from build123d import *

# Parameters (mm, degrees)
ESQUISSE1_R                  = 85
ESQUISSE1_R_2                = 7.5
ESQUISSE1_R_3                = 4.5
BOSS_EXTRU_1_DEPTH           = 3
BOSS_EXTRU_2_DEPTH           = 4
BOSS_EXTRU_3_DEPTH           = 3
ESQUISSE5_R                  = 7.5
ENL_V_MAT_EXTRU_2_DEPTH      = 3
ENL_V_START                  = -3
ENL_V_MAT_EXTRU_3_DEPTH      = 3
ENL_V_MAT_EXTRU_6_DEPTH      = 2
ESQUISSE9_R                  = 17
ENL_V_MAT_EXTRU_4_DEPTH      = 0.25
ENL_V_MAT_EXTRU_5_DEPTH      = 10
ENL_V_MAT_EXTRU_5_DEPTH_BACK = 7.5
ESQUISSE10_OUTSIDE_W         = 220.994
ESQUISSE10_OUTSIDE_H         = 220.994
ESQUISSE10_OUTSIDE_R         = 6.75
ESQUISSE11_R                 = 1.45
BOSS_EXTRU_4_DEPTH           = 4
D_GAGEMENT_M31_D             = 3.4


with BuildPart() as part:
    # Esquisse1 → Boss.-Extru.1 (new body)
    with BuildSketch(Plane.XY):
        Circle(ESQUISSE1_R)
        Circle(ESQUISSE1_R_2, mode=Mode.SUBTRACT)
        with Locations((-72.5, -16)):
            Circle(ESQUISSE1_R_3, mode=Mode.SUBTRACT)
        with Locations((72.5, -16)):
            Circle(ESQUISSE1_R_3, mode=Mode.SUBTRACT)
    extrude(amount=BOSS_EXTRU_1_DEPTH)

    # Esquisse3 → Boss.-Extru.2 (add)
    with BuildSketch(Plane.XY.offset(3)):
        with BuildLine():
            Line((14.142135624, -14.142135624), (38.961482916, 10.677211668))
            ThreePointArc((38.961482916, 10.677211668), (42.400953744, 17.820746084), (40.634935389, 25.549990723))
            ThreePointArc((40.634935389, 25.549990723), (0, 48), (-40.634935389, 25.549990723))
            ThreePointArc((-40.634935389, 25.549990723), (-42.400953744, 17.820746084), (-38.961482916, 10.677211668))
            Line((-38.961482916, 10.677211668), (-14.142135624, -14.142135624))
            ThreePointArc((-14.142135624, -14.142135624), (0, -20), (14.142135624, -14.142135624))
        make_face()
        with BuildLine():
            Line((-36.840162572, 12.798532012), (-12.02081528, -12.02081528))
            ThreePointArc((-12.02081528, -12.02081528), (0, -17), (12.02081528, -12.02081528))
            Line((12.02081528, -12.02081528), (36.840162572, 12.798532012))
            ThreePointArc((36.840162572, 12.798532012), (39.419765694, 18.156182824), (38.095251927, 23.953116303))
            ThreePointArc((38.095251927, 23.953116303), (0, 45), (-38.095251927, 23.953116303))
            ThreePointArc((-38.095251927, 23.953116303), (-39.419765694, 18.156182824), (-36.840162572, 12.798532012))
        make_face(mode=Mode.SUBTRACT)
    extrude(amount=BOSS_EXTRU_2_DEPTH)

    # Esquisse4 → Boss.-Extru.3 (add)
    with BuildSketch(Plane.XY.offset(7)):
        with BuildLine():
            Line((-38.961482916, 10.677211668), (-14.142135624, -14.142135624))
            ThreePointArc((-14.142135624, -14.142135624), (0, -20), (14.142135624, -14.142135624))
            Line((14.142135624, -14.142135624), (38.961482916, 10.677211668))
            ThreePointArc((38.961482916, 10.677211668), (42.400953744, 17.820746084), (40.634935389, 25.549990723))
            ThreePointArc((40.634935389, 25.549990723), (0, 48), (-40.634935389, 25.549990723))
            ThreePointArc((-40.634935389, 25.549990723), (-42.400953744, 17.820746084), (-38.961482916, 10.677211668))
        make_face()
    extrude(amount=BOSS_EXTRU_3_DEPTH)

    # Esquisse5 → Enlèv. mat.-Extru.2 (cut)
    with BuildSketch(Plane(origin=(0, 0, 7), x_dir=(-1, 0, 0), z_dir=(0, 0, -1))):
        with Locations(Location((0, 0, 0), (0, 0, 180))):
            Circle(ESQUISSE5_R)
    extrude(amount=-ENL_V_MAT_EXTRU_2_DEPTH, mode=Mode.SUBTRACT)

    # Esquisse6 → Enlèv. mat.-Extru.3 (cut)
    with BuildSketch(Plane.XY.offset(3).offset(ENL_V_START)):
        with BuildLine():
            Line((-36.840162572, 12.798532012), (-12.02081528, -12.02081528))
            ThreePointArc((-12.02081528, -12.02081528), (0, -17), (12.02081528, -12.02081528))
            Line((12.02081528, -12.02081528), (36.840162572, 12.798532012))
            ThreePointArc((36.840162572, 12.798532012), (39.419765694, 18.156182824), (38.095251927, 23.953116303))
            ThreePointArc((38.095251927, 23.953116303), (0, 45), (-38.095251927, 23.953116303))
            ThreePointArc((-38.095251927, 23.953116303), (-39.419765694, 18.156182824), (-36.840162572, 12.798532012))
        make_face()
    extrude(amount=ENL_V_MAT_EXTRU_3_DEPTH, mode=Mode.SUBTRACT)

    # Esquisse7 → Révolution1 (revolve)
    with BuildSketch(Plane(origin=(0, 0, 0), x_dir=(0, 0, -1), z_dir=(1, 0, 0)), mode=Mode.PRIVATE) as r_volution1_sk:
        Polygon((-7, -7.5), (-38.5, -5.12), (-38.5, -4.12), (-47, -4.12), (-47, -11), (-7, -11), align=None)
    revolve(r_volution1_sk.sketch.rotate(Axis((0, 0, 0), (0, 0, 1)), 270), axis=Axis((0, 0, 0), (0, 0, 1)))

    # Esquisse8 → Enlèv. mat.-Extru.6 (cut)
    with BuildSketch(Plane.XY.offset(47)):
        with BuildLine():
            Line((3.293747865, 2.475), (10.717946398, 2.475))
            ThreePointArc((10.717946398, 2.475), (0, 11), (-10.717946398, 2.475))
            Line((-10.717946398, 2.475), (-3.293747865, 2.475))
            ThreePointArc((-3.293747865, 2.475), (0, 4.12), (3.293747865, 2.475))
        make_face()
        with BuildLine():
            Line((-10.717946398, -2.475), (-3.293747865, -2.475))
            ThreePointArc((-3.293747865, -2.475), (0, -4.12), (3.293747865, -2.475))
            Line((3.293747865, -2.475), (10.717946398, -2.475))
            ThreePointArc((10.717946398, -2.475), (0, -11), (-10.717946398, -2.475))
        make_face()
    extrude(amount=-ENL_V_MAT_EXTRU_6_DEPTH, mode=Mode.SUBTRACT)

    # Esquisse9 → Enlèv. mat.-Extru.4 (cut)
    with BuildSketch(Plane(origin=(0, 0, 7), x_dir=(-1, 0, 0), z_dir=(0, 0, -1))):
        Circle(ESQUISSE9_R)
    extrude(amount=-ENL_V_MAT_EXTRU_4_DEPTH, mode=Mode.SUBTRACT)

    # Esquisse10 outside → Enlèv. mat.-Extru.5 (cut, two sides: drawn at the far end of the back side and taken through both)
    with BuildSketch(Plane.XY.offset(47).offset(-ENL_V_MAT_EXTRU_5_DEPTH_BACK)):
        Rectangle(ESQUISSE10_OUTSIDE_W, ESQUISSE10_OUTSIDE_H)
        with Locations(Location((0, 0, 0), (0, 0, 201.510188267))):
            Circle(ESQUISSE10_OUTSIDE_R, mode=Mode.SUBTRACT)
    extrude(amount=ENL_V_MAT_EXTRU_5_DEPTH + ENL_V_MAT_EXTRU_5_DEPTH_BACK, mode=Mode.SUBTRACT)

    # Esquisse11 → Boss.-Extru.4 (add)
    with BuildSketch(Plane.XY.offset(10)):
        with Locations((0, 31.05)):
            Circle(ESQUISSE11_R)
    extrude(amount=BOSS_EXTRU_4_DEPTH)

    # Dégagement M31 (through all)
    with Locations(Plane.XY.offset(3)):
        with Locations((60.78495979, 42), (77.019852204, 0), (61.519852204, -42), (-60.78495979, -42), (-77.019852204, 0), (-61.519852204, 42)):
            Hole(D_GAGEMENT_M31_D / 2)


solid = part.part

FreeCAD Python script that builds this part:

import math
import FreeCAD as App
import Part
import Sketcher
from FreeCAD import Vector
Q = App.Units.Quantity

doc = App.newDocument("Part")
body = doc.addObject("PartDesign::Body", "Body")

sketch1 = doc.addObject("Sketcher::SketchObject", "Sketch")
body.addObject(sketch1)
sketch1.AttachmentSupport = (doc.XY_Plane, [""])
sketch1.MapMode = "FlatFace"
sketch1.addGeometry(Part.Circle(Vector(0, 0, 0), Vector(0, 0, 1), 85), False)
sketch1.addGeometry(Part.Circle(Vector(-72.5, -16, 0), Vector(0, 0, 1), 4.5), False)
sketch1.addGeometry(Part.Circle(Vector(72.5, -16, 0), Vector(0, 0, 1), 4.5), False)
sketch1.addGeometry(Part.Circle(Vector(0, 0, 0), Vector(0, 0, 1), 7.5), False)
sketch1.addConstraint(Sketcher.Constraint("Coincident", 0, 3, -1, 1))
sketch1.addConstraint(Sketcher.Constraint("Coincident", 3, 3, -1, 1))
sketch1.addConstraint(Sketcher.Constraint("Equal", 1, 2))
sketch1.addConstraint(Sketcher.Constraint("Symmetric", 1, 3, 2, 3, -2))
sketch1.addConstraint(Sketcher.Constraint("Diameter", 0, Q("170 mm")))
sketch1.addConstraint(Sketcher.Constraint("Diameter", 1, Q("9 mm")))
sketch1.addConstraint(Sketcher.Constraint("Diameter", 3, Q("15 mm")))
sketch1.addConstraint(Sketcher.Constraint("DistanceY", 1, 3, -1, 1, Q("16 mm")))
sketch1.addConstraint(Sketcher.Constraint("DistanceX", 1, 3, 2, 3, Q("145 mm")))
pad1 = doc.addObject("PartDesign::Pad", "Pad")
body.addObject(pad1)
pad1.Profile = sketch1
pad1.Length = 3

sketch2 = doc.addObject("Sketcher::SketchObject", "Sketch001")
body.addObject(sketch2)
sketch2.AttachmentSupport = (doc.XY_Plane, [""])
sketch2.MapMode = "FlatFace"
sketch2.AttachmentOffset = App.Placement(Vector(0, 0, 3), App.Rotation())
sketch2.addGeometry(Part.LineSegment(Vector(14.142136, -14.142136, 0), Vector(38.961483, 10.677212, 0)), False)
sketch2.addGeometry(Part.ArcOfCircle(Part.Circle(Vector(30.476202, 19.162493, 0), Vector(0, 0, 1), 12), math.radians(-45), math.radians(32.160412)), False)
sketch2.addGeometry(Part.ArcOfCircle(Part.Circle(Vector(0, 0, 0), Vector(0, 0, 1), 48), math.radians(32.160412), math.radians(147.839588)), False)
sketch2.addGeometry(Part.ArcOfCircle(Part.Circle(Vector(-30.476202, 19.162493, 0), Vector(0, 0, 1), 12), math.radians(147.839588), math.radians(225)), False)
sketch2.addGeometry(Part.LineSegment(Vector(-38.961483, 10.677212, 0), Vector(-14.142136, -14.142136, 0)), False)
sketch2.addGeometry(Part.ArcOfCircle(Part.Circle(Vector(0, 0, 0), Vector(0, 0, 1), 20), math.radians(-135), math.radians(-45)), False)
sketch2.addGeometry(Part.LineSegment(Vector(-12.020815, -12.020815, 0), Vector(-36.840163, 12.798532, 0)), False)
sketch2.addGeometry(Part.ArcOfCircle(Part.Circle(Vector(-30.476202, 19.162493, 0), Vector(0, 0, 1), 9), math.radians(147.839588), math.radians(225)), False)
sketch2.addGeometry(Part.ArcOfCircle(Part.Circle(Vector(0, 0, 0), Vector(0, 0, 1), 45), math.radians(32.160412), math.radians(147.839588)), False)
sketch2.addGeometry(Part.ArcOfCircle(Part.Circle(Vector(30.476202, 19.162493, 0), Vector(0, 0, 1), 9), math.radians(-45), math.radians(32.160412)), False)
sketch2.addGeometry(Part.LineSegment(Vector(36.840163, 12.798532, 0), Vector(12.020815, -12.020815, 0)), False)
sketch2.addGeometry(Part.ArcOfCircle(Part.Circle(Vector(0, 0, 0), Vector(0, 0, 1), 17), math.radians(-135), math.radians(-45)), False)
sketch2.addConstraint(Sketcher.Constraint("Tangent", 0, 2, 1, 1))
sketch2.addConstraint(Sketcher.Constraint("Tangent", 1, 2, 2, 1))
sketch2.addConstraint(Sketcher.Constraint("Tangent", 2, 2, 3, 1))
sketch2.addConstraint(Sketcher.Constraint("Tangent", 3, 2, 4, 1))
sketch2.addConstraint(Sketcher.Constraint("Tangent", 4, 2, 5, 1))
sketch2.addConstraint(Sketcher.Constraint("Tangent", 5, 2, 0, 1))
sketch2.addConstraint(Sketcher.Constraint("Tangent", 6, 2, 7, 2))
sketch2.addConstraint(Sketcher.Constraint("Tangent", 7, 1, 8, 2))
sketch2.addConstraint(Sketcher.Constraint("Tangent", 8, 1, 9, 2))
sketch2.addConstraint(Sketcher.Constraint("Tangent", 9, 1, 10, 1))
sketch2.addConstraint(Sketcher.Constraint("Tangent", 10, 2, 11, 2))
sketch2.addConstraint(Sketcher.Constraint("Tangent", 11, 1, 6, 1))
sketch2.addConstraint(Sketcher.Constraint("Coincident", 2, 3, -1, 1))
sketch2.addConstraint(Sketcher.Constraint("Coincident", 5, 3, -1, 1))
sketch2.addConstraint(Sketcher.Constraint("Coincident", 8, 3, -1, 1))
sketch2.addConstraint(Sketcher.Constraint("Coincident", 11, 3, -1, 1))
sketch2.addConstraint(Sketcher.Constraint("Coincident", 7, 3, 3, 3))
sketch2.addConstraint(Sketcher.Constraint("Coincident", 9, 3, 1, 3))
sketch2.addConstraint(Sketcher.Constraint("Equal", 1, 3))
sketch2.addConstraint(Sketcher.Constraint("Perpendicular", 0, 4))
sketch2.addConstraint(Sketcher.Constraint("Parallel", 4, 6))
sketch2.addConstraint(Sketcher.Constraint("Horizontal", 1, 3, 3, 3))
sketch2.addConstraint(Sketcher.Constraint("Radius", 1, Q("12 mm")))
sketch2.addConstraint(Sketcher.Constraint("Radius", 2, Q("48 mm")))
sketch2.addConstraint(Sketcher.Constraint("Radius", 5, Q("20 mm")))
sketch2.addConstraint(Sketcher.Constraint("Radius", 7, Q("9 mm")))
pad2 = doc.addObject("PartDesign::Pad", "Pad001")
body.addObject(pad2)
pad2.Profile = sketch2
pad2.Length = 4

sketch3 = doc.addObject("Sketcher::SketchObject", "Sketch002")
body.addObject(sketch3)
sketch3.AttachmentSupport = (doc.XY_Plane, [""])
sketch3.MapMode = "FlatFace"
sketch3.AttachmentOffset = App.Placement(Vector(0, 0, 7), App.Rotation())
sketch3.addGeometry(Part.LineSegment(Vector(-38.961483, 10.677212, 0), Vector(-14.142136, -14.142136, 0)), False)
sketch3.addGeometry(Part.ArcOfCircle(Part.Circle(Vector(0, 0, 0), Vector(0, 0, 1), 20), math.radians(-135), math.radians(-45)), False)
sketch3.addGeometry(Part.LineSegment(Vector(14.142136, -14.142136, 0), Vector(38.961483, 10.677212, 0)), False)
sketch3.addGeometry(Part.ArcOfCircle(Part.Circle(Vector(30.476202, 19.162493, 0), Vector(0, 0, 1), 12), math.radians(-45), math.radians(32.160412)), False)
sketch3.addGeometry(Part.ArcOfCircle(Part.Circle(Vector(0, 0, 0), Vector(0, 0, 1), 48), math.radians(32.160412), math.radians(147.839588)), False)
sketch3.addGeometry(Part.ArcOfCircle(Part.Circle(Vector(-30.476202, 19.162493, 0), Vector(0, 0, 1), 12), math.radians(147.839588), math.radians(225)), False)
sketch3.addConstraint(Sketcher.Constraint("Tangent", 0, 2, 1, 1))
sketch3.addConstraint(Sketcher.Constraint("Tangent", 1, 2, 2, 1))
sketch3.addConstraint(Sketcher.Constraint("Tangent", 2, 2, 3, 1))
sketch3.addConstraint(Sketcher.Constraint("Tangent", 3, 2, 4, 1))
sketch3.addConstraint(Sketcher.Constraint("Tangent", 4, 2, 5, 1))
sketch3.addConstraint(Sketcher.Constraint("Tangent", 5, 2, 0, 1))
sketch3.addConstraint(Sketcher.Constraint("Coincident", 1, 3, -1, 1))
sketch3.addConstraint(Sketcher.Constraint("Coincident", 4, 3, -1, 1))
sketch3.addConstraint(Sketcher.Constraint("Equal", 3, 5))
sketch3.addConstraint(Sketcher.Constraint("Perpendicular", 0, 2))
sketch3.addConstraint(Sketcher.Constraint("Horizontal", 3, 3, 5, 3))
sketch3.addConstraint(Sketcher.Constraint("Radius", 1, Q("20 mm")))
sketch3.addConstraint(Sketcher.Constraint("Radius", 3, Q("12 mm")))
sketch3.addConstraint(Sketcher.Constraint("Radius", 4, Q("48 mm")))
pad3 = doc.addObject("PartDesign::Pad", "Pad002")
body.addObject(pad3)
pad3.Profile = sketch3
pad3.Length = 3

sketch4 = doc.addObject("Sketcher::SketchObject", "Sketch003")
body.addObject(sketch4)
sketch4.AttachmentSupport = (doc.XY_Plane, [""])
sketch4.MapMode = "FlatFace"
sketch4.AttachmentOffset = App.Placement(Vector(0, 0, 7), App.Rotation())
sketch4.addGeometry(Part.Circle(Vector(0, 0, 0), Vector(0, 0, 1), 7.5), False)
sketch4.addConstraint(Sketcher.Constraint("Coincident", 0, 3, -1, 1))
sketch4.addConstraint(Sketcher.Constraint("Diameter", 0, Q("15 mm")))
pocket1 = doc.addObject("PartDesign::Pocket", "Pocket")
body.addObject(pocket1)
pocket1.Profile = sketch4
pocket1.Length = 3
pocket1.Reversed = True

sketch5 = doc.addObject("Sketcher::SketchObject", "Sketch004")
body.addObject(sketch5)
sketch5.AttachmentSupport = (doc.XY_Plane, [""])
sketch5.MapMode = "FlatFace"
sketch5.addGeometry(Part.LineSegment(Vector(-36.840163, 12.798532, 0), Vector(-12.020815, -12.020815, 0)), False)
sketch5.addGeometry(Part.ArcOfCircle(Part.Circle(Vector(0, 0, 0), Vector(0, 0, 1), 17), math.radians(-135), math.radians(-45)), False)
sketch5.addGeometry(Part.LineSegment(Vector(12.020815, -12.020815, 0), Vector(36.840163, 12.798532, 0)), False)
sketch5.addGeometry(Part.ArcOfCircle(Part.Circle(Vector(30.476202, 19.162493, 0), Vector(0, 0, 1), 9), math.radians(-45), math.radians(32.160412)), False)
sketch5.addGeometry(Part.ArcOfCircle(Part.Circle(Vector(0, 0, 0), Vector(0, 0, 1), 45), math.radians(32.160412), math.radians(147.839588)), False)
sketch5.addGeometry(Part.ArcOfCircle(Part.Circle(Vector(-30.476202, 19.162493, 0), Vector(0, 0, 1), 9), math.radians(147.839588), math.radians(225)), False)
sketch5.addConstraint(Sketcher.Constraint("Tangent", 0, 2, 1, 1))
sketch5.addConstraint(Sketcher.Constraint("Tangent", 1, 2, 2, 1))
sketch5.addConstraint(Sketcher.Constraint("Tangent", 2, 2, 3, 1))
sketch5.addConstraint(Sketcher.Constraint("Tangent", 3, 2, 4, 1))
sketch5.addConstraint(Sketcher.Constraint("Tangent", 4, 2, 5, 1))
sketch5.addConstraint(Sketcher.Constraint("Tangent", 5, 2, 0, 1))
sketch5.addConstraint(Sketcher.Constraint("Coincident", 1, 3, -1, 1))
sketch5.addConstraint(Sketcher.Constraint("Coincident", 4, 3, -1, 1))
sketch5.addConstraint(Sketcher.Constraint("Equal", 3, 5))
sketch5.addConstraint(Sketcher.Constraint("Perpendicular", 0, 2))
sketch5.addConstraint(Sketcher.Constraint("Horizontal", 3, 3, 5, 3))
sketch5.addConstraint(Sketcher.Constraint("Radius", 1, Q("17 mm")))
sketch5.addConstraint(Sketcher.Constraint("Radius", 3, Q("9 mm")))
sketch5.addConstraint(Sketcher.Constraint("Radius", 4, Q("45 mm")))
pocket2 = doc.addObject("PartDesign::Pocket", "Pocket001")
body.addObject(pocket2)
pocket2.Profile = sketch5
pocket2.Length = 3
pocket2.Reversed = True

sketch6 = doc.addObject("Sketcher::SketchObject", "Sketch005")
body.addObject(sketch6)
sketch6.AttachmentSupport = (doc.YZ_Plane, [""])
sketch6.MapMode = "FlatFace"
sketch6.addGeometry(Part.LineSegment(Vector(-7.5, 7, 0), Vector(-5.12, 38.5, 0)), False)
sketch6.addGeometry(Part.LineSegment(Vector(-5.12, 38.5, 0), Vector(-4.12, 38.5, 0)), False)
sketch6.addGeometry(Part.LineSegment(Vector(-4.12, 38.5, 0), Vector(-4.12, 47, 0)), False)
sketch6.addGeometry(Part.LineSegment(Vector(-4.12, 47, 0), Vector(-11, 47, 0)), False)
sketch6.addGeometry(Part.LineSegment(Vector(-11, 47, 0), Vector(-11, 7, 0)), False)
sketch6.addGeometry(Part.LineSegment(Vector(-11, 7, 0), Vector(-7.5, 7, 0)), False)
sketch6.addConstraint(Sketcher.Constraint("Coincident", 0, 2, 1, 1))
sketch6.addConstraint(Sketcher.Constraint("Coincident", 1, 2, 2, 1))
sketch6.addConstraint(Sketcher.Constraint("Coincident", 2, 2, 3, 1))
sketch6.addConstraint(Sketcher.Constraint("Coincident", 3, 2, 4, 1))
sketch6.addConstraint(Sketcher.Constraint("Coincident", 4, 2, 5, 1))
sketch6.addConstraint(Sketcher.Constraint("Coincident", 5, 2, 0, 1))
sketch6.addConstraint(Sketcher.Constraint("Horizontal", 1))
sketch6.addConstraint(Sketcher.Constraint("Vertical", 2))
sketch6.addConstraint(Sketcher.Constraint("Horizontal", 3))
sketch6.addConstraint(Sketcher.Constraint("Vertical", 4))
sketch6.addConstraint(Sketcher.Constraint("Horizontal", 5))
sketch6.addConstraint(Sketcher.Constraint("DistanceX", 1, 1, 1, 2, Q("1 mm")))
sketch6.addConstraint(Sketcher.Constraint("DistanceY", 4, 2, 4, 1, Q("40 mm")))
sketch6.addConstraint(Sketcher.Constraint("DistanceX", 5, 1, 5, 2, Q("3.5 mm")))
sketch6.addConstraint(Sketcher.Constraint("DistanceY", 2, 1, 2, 2, Q("8.5 mm")))
sketch6.addConstraint(Sketcher.Constraint("DistanceY", -1, 1, 2, 2, Q("47 mm")))
sketch6.addConstraint(Sketcher.Constraint("DistanceX", 3, 2, -1, 1, Q("11 mm")))
sketch6.addConstraint(Sketcher.Constraint("DistanceX", 3, 2, 3, 1, Q("6.88 mm")))
revolution = doc.addObject("PartDesign::Revolution", "Revolution")
body.addObject(revolution)
revolution.Profile = sketch6
revolution.ReferenceAxis = (sketch6, ["V_Axis"])
revolution.Angle = 360

sketch7 = doc.addObject("Sketcher::SketchObject", "Sketch006")
body.addObject(sketch7)
sketch7.AttachmentSupport = (doc.XY_Plane, [""])
sketch7.MapMode = "FlatFace"
sketch7.AttachmentOffset = App.Placement(Vector(0, 0, 47), App.Rotation())
sketch7.addGeometry(Part.LineSegment(Vector(3.293748, 2.475, 0), Vector(10.717946, 2.475, 0)), False)
sketch7.addGeometry(Part.ArcOfCircle(Part.Circle(Vector(0, 0, 0), Vector(0, 0, 1), 11), math.radians(13.002878), math.radians(166.997122)), False)
sketch7.addGeometry(Part.LineSegment(Vector(-10.717946, 2.475, 0), Vector(-3.293748, 2.475, 0)), False)
sketch7.addGeometry(Part.ArcOfCircle(Part.Circle(Vector(0, 0, 0), Vector(0, 0, 1), 4.12), math.radians(36.922066), math.radians(143.077934)), False)
sketch7.addGeometry(Part.LineSegment(Vector(-3.293748, -2.475, 0), Vector(-10.717946, -2.475, 0)), False)
sketch7.addGeometry(Part.ArcOfCircle(Part.Circle(Vector(0, 0, 0), Vector(0, 0, 1), 11), math.radians(-166.997122), math.radians(-13.002878)), False)
sketch7.addGeometry(Part.LineSegment(Vector(10.717946, -2.475, 0), Vector(3.293748, -2.475, 0)), False)
sketch7.addGeometry(Part.ArcOfCircle(Part.Circle(Vector(0, 0, 0), Vector(0, 0, 1), 4.12), math.radians(-143.077934), math.radians(-36.922066)), False)
sketch7.addConstraint(Sketcher.Constraint("Coincident", 0, 2, 1, 1))
sketch7.addConstraint(Sketcher.Constraint("Coincident", 1, 2, 2, 1))
sketch7.addConstraint(Sketcher.Constraint("Coincident", 2, 2, 3, 2))
sketch7.addConstraint(Sketcher.Constraint("Coincident", 3, 1, 0, 1))
sketch7.addConstraint(Sketcher.Constraint("Coincident", 4, 2, 5, 1))
sketch7.addConstraint(Sketcher.Constraint("Coincident", 5, 2, 6, 1))
sketch7.addConstraint(Sketcher.Constraint("Coincident", 6, 2, 7, 2))
sketch7.addConstraint(Sketcher.Constraint("Coincident", 7, 1, 4, 1))
sketch7.addConstraint(Sketcher.Constraint("Horizontal", 0))
sketch7.addConstraint(Sketcher.Constraint("Horizontal", 2))
sketch7.addConstraint(Sketcher.Constraint("Horizontal", 4))
sketch7.addConstraint(Sketcher.Constraint("Horizontal", 6))
sketch7.addConstraint(Sketcher.Constraint("Coincident", 1, 3, -1, 1))
sketch7.addConstraint(Sketcher.Constraint("Coincident", 3, 3, -1, 1))
sketch7.addConstraint(Sketcher.Constraint("Coincident", 5, 3, -1, 1))
sketch7.addConstraint(Sketcher.Constraint("Coincident", 7, 3, -1, 1))
sketch7.addConstraint(Sketcher.Constraint("Equal", 1, 5))
sketch7.addConstraint(Sketcher.Constraint("Equal", 3, 7))
sketch7.addConstraint(Sketcher.Constraint("Horizontal", 0, 2, 1, 2))
sketch7.addConstraint(Sketcher.Constraint("Horizontal", 4, 2, 5, 2))
sketch7.addConstraint(Sketcher.Constraint("Vertical", 1, 2, 4, 2))
sketch7.addConstraint(Sketcher.Constraint("Radius", 1, Q("11 mm")))
sketch7.addConstraint(Sketcher.Constraint("Radius", 3, Q("4.12 mm")))
sketch7.addConstraint(Sketcher.Constraint("DistanceY", 4, 2, 1, 2, Q("4.95 mm")))
pocket3 = doc.addObject("PartDesign::Pocket", "Pocket002")
body.addObject(pocket3)
pocket3.Profile = sketch7
pocket3.Length = 2

sketch8 = doc.addObject("Sketcher::SketchObject", "Sketch007")
body.addObject(sketch8)
sketch8.AttachmentSupport = (doc.XY_Plane, [""])
sketch8.MapMode = "FlatFace"
sketch8.AttachmentOffset = App.Placement(Vector(0, 0, 7), App.Rotation())
sketch8.addGeometry(Part.Circle(Vector(0, 0, 0), Vector(0, 0, 1), 17), False)
sketch8.addConstraint(Sketcher.Constraint("Coincident", 0, 3, -1, 1))
sketch8.addConstraint(Sketcher.Constraint("Diameter", 0, Q("34 mm")))
pocket4 = doc.addObject("PartDesign::Pocket", "Pocket003")
body.addObject(pocket4)
pocket4.Profile = sketch8
pocket4.Length = 0.25
pocket4.Reversed = True

sketch9 = doc.addObject("Sketcher::SketchObject", "Sketch008")
body.addObject(sketch9)
sketch9.AttachmentSupport = (doc.XY_Plane, [""])
sketch9.MapMode = "FlatFace"
sketch9.AttachmentOffset = App.Placement(Vector(0, 0, 47), App.Rotation())
sketch9.addGeometry(Part.LineSegment(Vector(-110.497, 110.497, 0), Vector(-110.497, -110.497, 0)), False)
sketch9.addGeometry(Part.LineSegment(Vector(-110.497, -110.497, 0), Vector(110.497, -110.497, 0)), False)
sketch9.addGeometry(Part.LineSegment(Vector(110.497, -110.497, 0), Vector(110.497, 110.497, 0)), False)
sketch9.addGeometry(Part.LineSegment(Vector(110.497, 110.497, 0), Vector(-110.497, 110.497, 0)), False)
sketch9.addGeometry(Part.Circle(Vector(0, 0, 0), Vector(0, 0, 1), 6.75), False)
sketch9.addConstraint(Sketcher.Constraint("Coincident", 0, 2, 1, 1))
sketch9.addConstraint(Sketcher.Constraint("Coincident", 1, 2, 2, 1))
sketch9.addConstraint(Sketcher.Constraint("Coincident", 2, 2, 3, 1))
sketch9.addConstraint(Sketcher.Constraint("Coincident", 3, 2, 0, 1))
sketch9.addConstraint(Sketcher.Constraint("Vertical", 0))
sketch9.addConstraint(Sketcher.Constraint("Horizontal", 1))
sketch9.addConstraint(Sketcher.Constraint("Vertical", 2))
sketch9.addConstraint(Sketcher.Constraint("Horizontal", 3))
sketch9.addConstraint(Sketcher.Constraint("Coincident", 4, 3, -1, 1))
sketch9.addConstraint(Sketcher.Constraint("Symmetric", 0, 2, 2, 2, -1, 1))
sketch9.addConstraint(Sketcher.Constraint("Equal", 3, 0))
sketch9.addConstraint(Sketcher.Constraint("Diameter", 4, Q("13.5 mm")))
sketch9.addConstraint(Sketcher.Constraint("DistanceX", 1, 1, 1, 2, Q("220.994 mm")))
pocket5 = doc.addObject("PartDesign::Pocket", "Pocket004")
body.addObject(pocket5)
pocket5.Profile = sketch9
pocket5.Type = "TwoLengths"
pocket5.Length = 10
pocket5.Length2 = 7.5
pocket5.Reversed = True

sketch10 = doc.addObject("Sketcher::SketchObject", "Sketch009")
body.addObject(sketch10)
sketch10.AttachmentSupport = (doc.XY_Plane, [""])
sketch10.MapMode = "FlatFace"
sketch10.AttachmentOffset = App.Placement(Vector(0, 0, 10), App.Rotation())
sketch10.addGeometry(Part.Circle(Vector(0, 31.05, 0), Vector(0, 0, 1), 1.45), False)
sketch10.addConstraint(Sketcher.Constraint("PointOnObject", 0, 3, -2))
sketch10.addConstraint(Sketcher.Constraint("Diameter", 0, Q("2.9 mm")))
sketch10.addConstraint(Sketcher.Constraint("DistanceY", -1, 1, 0, 3, Q("31.05 mm")))
pad4 = doc.addObject("PartDesign::Pad", "Pad003")
body.addObject(pad4)
pad4.Profile = sketch10
pad4.Length = 4

sketch11 = doc.addObject("Sketcher::SketchObject", "Sketch010")
body.addObject(sketch11)
sketch11.AttachmentSupport = (doc.XY_Plane, [""])
sketch11.MapMode = "FlatFace"
sketch11.AttachmentOffset = App.Placement(Vector(0, 0, 3), App.Rotation())
sketch11.addGeometry(Part.Circle(Vector(60.78496, 42, 0), Vector(0, 0, 1), 1.7), False)
sketch11.addGeometry(Part.Circle(Vector(77.019852, 0, 0), Vector(0, 0, 1), 1.7), False)
sketch11.addGeometry(Part.Circle(Vector(61.519852, -42, 0), Vector(0, 0, 1), 1.7), False)
sketch11.addGeometry(Part.Circle(Vector(-60.78496, -42, 0), Vector(0, 0, 1), 1.7), False)
sketch11.addGeometry(Part.Circle(Vector(-77.019852, 0, 0), Vector(0, 0, 1), 1.7), False)
sketch11.addGeometry(Part.Circle(Vector(-61.519852, 42, 0), Vector(0, 0, 1), 1.7), False)
sketch11.addConstraint(Sketcher.Constraint("Equal", 0, 1))
sketch11.addConstraint(Sketcher.Constraint("Equal", 1, 2))
sketch11.addConstraint(Sketcher.Constraint("Equal", 2, 3))
sketch11.addConstraint(Sketcher.Constraint("Equal", 3, 4))
sketch11.addConstraint(Sketcher.Constraint("Equal", 4, 5))
sketch11.addConstraint(Sketcher.Constraint("Symmetric", 0, 3, 3, 3, -1, 1))
sketch11.addConstraint(Sketcher.Constraint("Symmetric", 1, 3, 4, 3, -1, 1))
sketch11.addConstraint(Sketcher.Constraint("Symmetric", 2, 3, 5, 3, -1, 1))
sketch11.addConstraint(Sketcher.Constraint("PointOnObject", 1, 3, -1))
sketch11.addConstraint(Sketcher.Constraint("Horizontal", 2, 3, 3, 3))
sketch11.addConstraint(Sketcher.Constraint("Diameter", 0, Q("3.4 mm")))
sketch11.addConstraint(Sketcher.Constraint("DistanceY", -1, 1, 0, 3, Q("42 mm")))
sketch11.addConstraint(Sketcher.Constraint("DistanceX", 2, 3, 1, 3, Q("15.5 mm")))
sketch11.addConstraint(Sketcher.Constraint("DistanceX", -1, 1, 0, 3, Q("60.78496 mm")))
sketch11.addConstraint(Sketcher.Constraint("DistanceX", 3, 3, 2, 3, Q("122.304812 mm")))
doc.recompute()
hole = doc.addObject("PartDesign::Hole", "Hole")
body.addObject(hole)
hole.Profile = sketch11
hole.ThreadType = "None"
hole.Diameter = 3.4
hole.DepthType = "ThroughAll"

doc.recompute()
